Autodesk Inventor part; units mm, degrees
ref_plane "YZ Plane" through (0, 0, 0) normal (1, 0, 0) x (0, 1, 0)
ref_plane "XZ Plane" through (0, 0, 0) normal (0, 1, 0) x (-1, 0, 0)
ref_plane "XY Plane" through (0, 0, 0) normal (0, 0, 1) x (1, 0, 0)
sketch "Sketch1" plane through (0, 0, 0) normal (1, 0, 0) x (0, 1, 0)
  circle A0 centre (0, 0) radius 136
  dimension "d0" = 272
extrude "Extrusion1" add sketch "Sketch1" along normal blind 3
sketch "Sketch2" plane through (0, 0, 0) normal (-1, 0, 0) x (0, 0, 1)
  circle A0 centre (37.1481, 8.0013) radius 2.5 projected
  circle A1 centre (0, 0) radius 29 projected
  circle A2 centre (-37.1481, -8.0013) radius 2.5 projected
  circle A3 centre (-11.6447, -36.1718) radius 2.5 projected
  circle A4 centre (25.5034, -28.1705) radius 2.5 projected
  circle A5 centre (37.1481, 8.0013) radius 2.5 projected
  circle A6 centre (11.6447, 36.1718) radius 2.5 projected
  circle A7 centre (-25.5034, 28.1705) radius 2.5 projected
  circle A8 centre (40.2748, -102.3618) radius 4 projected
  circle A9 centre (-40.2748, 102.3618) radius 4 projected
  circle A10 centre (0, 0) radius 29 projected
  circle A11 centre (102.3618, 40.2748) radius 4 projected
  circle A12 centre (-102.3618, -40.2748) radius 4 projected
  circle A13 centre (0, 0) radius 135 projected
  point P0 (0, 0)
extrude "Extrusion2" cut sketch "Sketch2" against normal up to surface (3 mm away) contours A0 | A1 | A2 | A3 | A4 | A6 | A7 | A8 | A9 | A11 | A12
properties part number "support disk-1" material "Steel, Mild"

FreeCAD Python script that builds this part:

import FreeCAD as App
import Part
import Sketcher
Q = App.Units.Quantity

doc = App.newDocument("Part")
body = doc.addObject("PartDesign::Body", "Body")

# Sketch on YZ plane
sketch1 = body.newObject("Sketcher::SketchObject", "Sketch")
sketch1.AttachmentSupport = (doc.getObject("YZ_Plane"), [""])
sketch1.MapMode = "FlatFace"
sketch1.addGeometry(Part.Circle(App.Vector(0, 0, 0), App.Vector(0, 0, 1), 136), False)
sketch1.addConstraint([
    Sketcher.Constraint("Coincident", 0, 3, -1, 1),
    Sketcher.Constraint("Diameter", 0, Q("272 mm")),
])
pad1 = body.newObject("PartDesign::Pad", "Pad")
pad1.Profile = sketch1
pad1.Length = 3

# Sketch on YZ plane
sketch2 = body.newObject("Sketcher::SketchObject", "Sketch001")
sketch2.AttachmentSupport = (doc.getObject("YZ_Plane"), [""])
sketch2.MapMode = "FlatFace"
sketch2.addGeometry([
    Part.Circle(App.Vector(8, 37.1, 0), App.Vector(0, 0, 1), 2.5),  # 0
    Part.Circle(App.Vector(0, 0, 0), App.Vector(0, 0, 1), 29),  # 1
    Part.Circle(App.Vector(-8, -37.1, 0), App.Vector(0, 0, 1), 2.5),  # 2
    Part.Circle(App.Vector(-36.2, -11.6, 0), App.Vector(0, 0, 1), 2.5),  # 3
    Part.Circle(App.Vector(-28.2, 25.5, 0), App.Vector(0, 0, 1), 2.5),  # 4
    Part.Circle(App.Vector(36.2, 11.6, 0), App.Vector(0, 0, 1), 2.5),  # 5
    Part.Circle(App.Vector(28.2, -25.5, 0), App.Vector(0, 0, 1), 2.5),  # 6
    Part.Circle(App.Vector(-102.4, 40.3, 0), App.Vector(0, 0, 1), 4),  # 7
    Part.Circle(App.Vector(102.4, -40.3, 0), App.Vector(0, 0, 1), 4),  # 8
    Part.Circle(App.Vector(40.3, 102.4, 0), App.Vector(0, 0, 1), 4),  # 9
    Part.Circle(App.Vector(-40.3, -102.4, 0), App.Vector(0, 0, 1), 4),  # 10
], False)
sketch2.addConstraint([
    Sketcher.Constraint("Coincident", 1, 3, -1, 1),
    Sketcher.Constraint("Equal", 0, 2),
    Sketcher.Constraint("Equal", 2, 3),
    Sketcher.Constraint("Equal", 3, 4),
    Sketcher.Constraint("Equal", 4, 5),
    Sketcher.Constraint("Equal", 5, 6),
    Sketcher.Constraint("Equal", 7, 8),
    Sketcher.Constraint("Equal", 8, 9),
    Sketcher.Constraint("Equal", 9, 10),
    Sketcher.Constraint("Symmetric", 0, 3, 2, 3, -1, 1),
    Sketcher.Constraint("Symmetric", 3, 3, 5, 3, -1, 1),
    Sketcher.Constraint("Symmetric", 4, 3, 6, 3, -1, 1),
    Sketcher.Constraint("Symmetric", 7, 3, 8, 3, -1, 1),
    Sketcher.Constraint("Symmetric", 9, 3, 10, 3, -1, 1),
    Sketcher.Constraint("Diameter", 0, Q("5 mm")),
    Sketcher.Constraint("Diameter", 1, Q("58 mm")),
    Sketcher.Constraint("Diameter", 7, Q("8 mm")),
    Sketcher.Constraint("DistanceX", 7, 3, 3, 3, Q("66.19 mm")),
    Sketcher.Constraint("DistanceY", -1, 1, 0, 3, Q("37.148 mm")),
    Sketcher.Constraint("DistanceX", 3, 3, 0, 3, Q("44.173 mm")),
    Sketcher.Constraint("DistanceY", 3, 3, 4, 3, Q("37.148 mm")),
    Sketcher.Constraint("DistanceY", 2, 3, 7, 3, Q("77.423 mm")),
    Sketcher.Constraint("DistanceX", 5, 3, 9, 3, Q("4.103 mm")),
    Sketcher.Constraint("DistanceY", 5, 3, 9, 3, Q("90.717 mm")),
    Sketcher.Constraint("DistanceX", -1, 1, 0, 3, Q("8.0013 mm")),
    Sketcher.Constraint("DistanceY", 3, 3, -1, 1, Q("11.6447 mm")),
    Sketcher.Constraint("DistanceX", 4, 3, -1, 1, Q("28.1705 mm")),
])
pocket1 = body.newObject("PartDesign::Pocket", "Pocket")
pocket1.Profile = sketch2
pocket1.Length = 3
pocket1.Reversed = True

doc.recompute()
